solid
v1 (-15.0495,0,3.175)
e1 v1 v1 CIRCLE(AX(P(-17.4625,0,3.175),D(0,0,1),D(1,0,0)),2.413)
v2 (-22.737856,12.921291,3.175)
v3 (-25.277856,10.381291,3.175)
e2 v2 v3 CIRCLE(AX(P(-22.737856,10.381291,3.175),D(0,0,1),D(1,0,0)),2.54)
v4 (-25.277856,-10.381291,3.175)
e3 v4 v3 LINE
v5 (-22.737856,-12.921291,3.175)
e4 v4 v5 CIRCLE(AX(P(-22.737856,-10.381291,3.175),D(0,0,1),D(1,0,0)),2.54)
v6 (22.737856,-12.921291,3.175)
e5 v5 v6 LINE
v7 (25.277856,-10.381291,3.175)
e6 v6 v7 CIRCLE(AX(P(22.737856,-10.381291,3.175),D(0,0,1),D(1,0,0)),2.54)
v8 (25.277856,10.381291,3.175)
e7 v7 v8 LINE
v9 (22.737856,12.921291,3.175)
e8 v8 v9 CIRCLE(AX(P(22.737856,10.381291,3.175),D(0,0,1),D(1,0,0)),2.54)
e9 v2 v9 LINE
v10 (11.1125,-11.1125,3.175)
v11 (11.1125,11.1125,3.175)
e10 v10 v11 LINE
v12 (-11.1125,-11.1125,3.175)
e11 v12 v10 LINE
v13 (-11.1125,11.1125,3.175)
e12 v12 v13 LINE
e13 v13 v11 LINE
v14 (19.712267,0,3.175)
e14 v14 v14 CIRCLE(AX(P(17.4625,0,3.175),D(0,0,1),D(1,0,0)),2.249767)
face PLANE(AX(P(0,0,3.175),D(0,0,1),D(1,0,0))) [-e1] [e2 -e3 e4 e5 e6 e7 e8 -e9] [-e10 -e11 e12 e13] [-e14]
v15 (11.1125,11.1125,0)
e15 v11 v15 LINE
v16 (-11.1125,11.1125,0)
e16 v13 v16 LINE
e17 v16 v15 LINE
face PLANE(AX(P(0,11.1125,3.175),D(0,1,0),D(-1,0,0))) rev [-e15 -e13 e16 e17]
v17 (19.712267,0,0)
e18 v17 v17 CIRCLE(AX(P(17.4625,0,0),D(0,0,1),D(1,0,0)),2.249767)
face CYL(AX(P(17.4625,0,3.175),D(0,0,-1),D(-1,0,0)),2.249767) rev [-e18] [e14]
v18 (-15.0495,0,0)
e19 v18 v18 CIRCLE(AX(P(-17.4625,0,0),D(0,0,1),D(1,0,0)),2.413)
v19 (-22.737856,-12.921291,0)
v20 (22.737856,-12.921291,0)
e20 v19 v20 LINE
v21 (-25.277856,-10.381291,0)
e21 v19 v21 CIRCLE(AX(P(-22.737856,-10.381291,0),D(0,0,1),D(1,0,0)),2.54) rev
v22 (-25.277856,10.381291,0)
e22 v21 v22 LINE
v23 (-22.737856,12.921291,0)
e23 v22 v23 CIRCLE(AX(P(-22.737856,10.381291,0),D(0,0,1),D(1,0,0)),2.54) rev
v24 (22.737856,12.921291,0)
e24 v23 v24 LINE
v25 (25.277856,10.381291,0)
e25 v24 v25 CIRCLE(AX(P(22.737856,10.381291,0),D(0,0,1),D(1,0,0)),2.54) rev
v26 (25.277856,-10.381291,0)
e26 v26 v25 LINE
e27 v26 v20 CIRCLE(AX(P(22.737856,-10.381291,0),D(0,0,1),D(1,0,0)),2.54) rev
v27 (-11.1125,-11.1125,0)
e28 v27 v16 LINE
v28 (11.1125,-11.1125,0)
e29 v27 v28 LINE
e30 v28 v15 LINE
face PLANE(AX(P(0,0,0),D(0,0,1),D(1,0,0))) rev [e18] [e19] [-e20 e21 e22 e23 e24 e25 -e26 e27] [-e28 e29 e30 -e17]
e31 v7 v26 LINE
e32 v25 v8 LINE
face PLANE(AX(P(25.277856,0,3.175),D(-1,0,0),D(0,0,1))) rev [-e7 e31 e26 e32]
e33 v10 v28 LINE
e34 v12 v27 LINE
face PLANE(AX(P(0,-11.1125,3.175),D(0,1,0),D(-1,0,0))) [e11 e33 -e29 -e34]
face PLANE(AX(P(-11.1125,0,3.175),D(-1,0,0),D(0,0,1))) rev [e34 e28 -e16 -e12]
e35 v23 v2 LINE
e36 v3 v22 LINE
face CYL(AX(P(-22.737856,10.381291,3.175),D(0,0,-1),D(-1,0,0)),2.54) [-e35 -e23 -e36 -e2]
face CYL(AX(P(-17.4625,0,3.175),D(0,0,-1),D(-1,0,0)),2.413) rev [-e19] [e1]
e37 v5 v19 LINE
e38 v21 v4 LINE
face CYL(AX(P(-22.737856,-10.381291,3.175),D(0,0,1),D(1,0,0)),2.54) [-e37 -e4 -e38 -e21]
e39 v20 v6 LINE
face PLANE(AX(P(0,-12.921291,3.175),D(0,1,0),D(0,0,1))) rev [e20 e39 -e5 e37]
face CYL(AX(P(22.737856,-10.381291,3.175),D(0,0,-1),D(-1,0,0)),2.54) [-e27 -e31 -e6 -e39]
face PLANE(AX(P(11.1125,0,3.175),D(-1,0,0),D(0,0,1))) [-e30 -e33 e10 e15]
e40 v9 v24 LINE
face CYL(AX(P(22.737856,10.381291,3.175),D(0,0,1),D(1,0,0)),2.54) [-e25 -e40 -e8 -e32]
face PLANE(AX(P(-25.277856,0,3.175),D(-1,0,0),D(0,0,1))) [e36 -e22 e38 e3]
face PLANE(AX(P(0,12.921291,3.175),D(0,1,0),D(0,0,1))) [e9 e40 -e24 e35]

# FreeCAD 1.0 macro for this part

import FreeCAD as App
import Part
import Sketcher
Q = App.Units.Quantity


def edges_at(feature, points):
    """Names of the edges that pass closest to the given points."""
    edges = feature.Shape.Edges
    near = lambda p: min(range(len(edges)), key=lambda i: edges[i].distToShape(Part.Vertex(*p))[0])
    return sorted({f"Edge{near(p) + 1}" for p in points})

doc = App.newDocument("Part")
body = doc.addObject("PartDesign::Body", "Body")

sketch1 = doc.addObject("Sketcher::SketchObject", "Sketch")
body.addObject(sketch1)
sketch1.AttachmentSupport = (doc.XY_Plane, [""])
sketch1.MapMode = "FlatFace"
sketch1.addGeometry([
    Part.LineSegment(App.Vector(-25.3, 12.9, 0), App.Vector(-25.3, -12.9, 0)),
    Part.LineSegment(App.Vector(-25.3, -12.9, 0), App.Vector(25.3, -12.9, 0)),
    Part.LineSegment(App.Vector(25.3, -12.9, 0), App.Vector(25.3, 12.9, 0)),
    Part.LineSegment(App.Vector(25.3, 12.9, 0), App.Vector(-25.3, 12.9, 0)),
    Part.Circle(App.Vector(-17.5, 0, 0), App.Vector(0, 0, 1), 2.4),
    Part.LineSegment(App.Vector(11.1, -11.1, 0), App.Vector(-11.1, -11.1, 0)),
    Part.LineSegment(App.Vector(-11.1, -11.1, 0), App.Vector(-11.1, 11.1, 0)),
    Part.LineSegment(App.Vector(-11.1, 11.1, 0), App.Vector(11.1, 11.1, 0)),
    Part.LineSegment(App.Vector(11.1, 11.1, 0), App.Vector(11.1, -11.1, 0)),
    Part.Circle(App.Vector(17.5, 0, 0), App.Vector(0, 0, 1), 2.2),
], False)
sketch1.addConstraint([
    Sketcher.Constraint("Coincident", 0, 2, 1, 1),
    Sketcher.Constraint("Coincident", 1, 2, 2, 1),
    Sketcher.Constraint("Coincident", 2, 2, 3, 1),
    Sketcher.Constraint("Coincident", 3, 2, 0, 1),
    Sketcher.Constraint("Coincident", 5, 2, 6, 1),
    Sketcher.Constraint("Coincident", 6, 2, 7, 1),
    Sketcher.Constraint("Coincident", 7, 2, 8, 1),
    Sketcher.Constraint("Coincident", 8, 2, 5, 1),
    Sketcher.Constraint("Vertical", 0),
    Sketcher.Constraint("Horizontal", 1),
    Sketcher.Constraint("Vertical", 2),
    Sketcher.Constraint("Horizontal", 3),
    Sketcher.Constraint("Horizontal", 5),
    Sketcher.Constraint("Vertical", 6),
    Sketcher.Constraint("Horizontal", 7),
    Sketcher.Constraint("Vertical", 8),
    Sketcher.Constraint("Symmetric", 4, 3, 9, 3, -1, 1),
    Sketcher.Constraint("Symmetric", 0, 2, 2, 2, -1, 1),
    Sketcher.Constraint("Symmetric", 5, 2, 7, 2, -1, 1),
    Sketcher.Constraint("PointOnObject", 4, 3, -1),
    Sketcher.Constraint("Equal", 7, 6),
    Sketcher.Constraint("Diameter", 4, Q("0.19 in")),
    Sketcher.Constraint("DistanceX", 5, 2, 5, 1, Q("0.875 in")),
    Sketcher.Constraint("DistanceX", 4, 3, 5, 2, Q("0.25 in")),
    Sketcher.Constraint("Diameter", 9, Q("4.499533 mm")),
    Sketcher.Constraint("DistanceX", 1, 1, 1, 2, Q("50.555712 mm")),
    Sketcher.Constraint("DistanceY", 0, 2, 0, 1, Q("25.842582 mm")),
])
pad1 = doc.addObject("PartDesign::Pad", "Pad")
body.addObject(pad1)
pad1.Profile = sketch1
pad1.Length = Q("0.125 in")
doc.recompute()

fillet = doc.addObject("PartDesign::Fillet", "Fillet")
body.addObject(fillet)
fillet.Base = (pad1, edges_at(pad1, [
    (-25.278, -12.921, 1.587),
    (-25.278, 12.921, 1.587),
    (25.278, 12.921, 1.587),
    (25.278, -12.921, 1.587),
]))
fillet.Radius = Q("0.1 in")

doc.recompute()
